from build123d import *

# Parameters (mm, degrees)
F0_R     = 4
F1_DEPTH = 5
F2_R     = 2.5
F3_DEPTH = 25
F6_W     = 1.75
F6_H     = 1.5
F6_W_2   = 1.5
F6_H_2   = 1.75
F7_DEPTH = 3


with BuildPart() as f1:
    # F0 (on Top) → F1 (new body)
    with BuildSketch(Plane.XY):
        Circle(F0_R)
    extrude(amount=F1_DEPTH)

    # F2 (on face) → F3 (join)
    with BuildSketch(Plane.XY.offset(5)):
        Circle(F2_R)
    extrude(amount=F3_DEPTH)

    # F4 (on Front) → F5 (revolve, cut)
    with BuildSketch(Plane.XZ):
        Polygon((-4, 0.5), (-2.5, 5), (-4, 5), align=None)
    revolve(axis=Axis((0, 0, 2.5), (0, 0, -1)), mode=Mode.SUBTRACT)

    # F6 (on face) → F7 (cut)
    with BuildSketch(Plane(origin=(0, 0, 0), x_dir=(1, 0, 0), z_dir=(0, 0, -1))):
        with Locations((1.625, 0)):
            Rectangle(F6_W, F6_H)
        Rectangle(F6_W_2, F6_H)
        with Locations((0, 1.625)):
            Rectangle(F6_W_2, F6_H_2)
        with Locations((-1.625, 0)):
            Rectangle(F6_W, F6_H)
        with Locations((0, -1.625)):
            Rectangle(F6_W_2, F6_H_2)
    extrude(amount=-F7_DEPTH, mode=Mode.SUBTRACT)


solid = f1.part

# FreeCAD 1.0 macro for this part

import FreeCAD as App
import Part
import Sketcher

V = App.Vector
Q = App.Units.Quantity


def add_polygon(sketch, points):
    """Adds a closed chain of lines whose ends are joined by coincident constraints."""
    first, n = sketch.GeometryCount, len(points)
    for a, b in zip(points, points[1:] + points[:1]):
        sketch.addGeometry(Part.LineSegment(App.Vector(*a, 0), App.Vector(*b, 0)), False)
    for i in range(n):
        sketch.addConstraint(Sketcher.Constraint("Coincident", first + i, 2, first + (i + 1) % n, 1))

doc = App.newDocument("Part")
body = doc.addObject("PartDesign::Body", "Body")

sketch1 = body.newObject("Sketcher::SketchObject", "Sketch")
sketch1.AttachmentSupport = (doc.getObject("XY_Plane"), [""])
sketch1.MapMode = "FlatFace"
sketch1.addGeometry(Part.Circle(V(0, 0, 0), V(0, 0, 1), 4), False)
sketch1.addConstraint([
    Sketcher.Constraint("Coincident", 0, 3, -1, 1),
    Sketcher.Constraint("Diameter", 0, Q("8 mm")),
])
pad1 = body.newObject("PartDesign::Pad", "Pad")
pad1.Profile = sketch1
pad1.Length = 5

sketch2 = body.newObject("Sketcher::SketchObject", "Sketch001")
sketch2.AttachmentSupport = (doc.getObject("XY_Plane"), [""])
sketch2.MapMode = "FlatFace"
sketch2.AttachmentOffset = App.Placement(V(0, 0, 5), App.Rotation())
sketch2.addGeometry(Part.Circle(V(0, 0, 0), V(0, 0, 1), 2.5), False)
sketch2.addConstraint([
    Sketcher.Constraint("Coincident", 0, 3, -1, 1),
    Sketcher.Constraint("Diameter", 0, Q("5 mm")),
])
pad2 = body.newObject("PartDesign::Pad", "Pad001")
pad2.Profile = sketch2
pad2.Length = 25

sketch3 = body.newObject("Sketcher::SketchObject", "Sketch002")
sketch3.AttachmentSupport = (doc.getObject("XZ_Plane"), [""])
sketch3.MapMode = "FlatFace"
add_polygon(sketch3, [(-4, 0.5), (-2.5, 5), (-4, 5)])
sketch3.addConstraint([
    Sketcher.Constraint("Horizontal", 1),
    Sketcher.Constraint("Vertical", 2),
    Sketcher.Constraint("DistanceX", 1, 2, 1, 1, Q("1.5 mm")),
    Sketcher.Constraint("DistanceY", 2, 2, 2, 1, Q("4.5 mm")),
    Sketcher.Constraint("DistanceY", -1, 1, 0, 2, Q("5 mm")),
    Sketcher.Constraint("DistanceX", 1, 2, -1, 1, Q("4 mm")),
])
groove = body.newObject("PartDesign::Groove", "Groove")
groove.Profile = sketch3
groove.ReferenceAxis = (sketch3, ["V_Axis"])
groove.Angle = 360

sketch4 = body.newObject("Sketcher::SketchObject", "Sketch003")
sketch4.AttachmentSupport = (doc.getObject("XY_Plane"), [""])
sketch4.MapMode = "FlatFace"
add_polygon(sketch4, [(2.5, 0.75), (2.5, -0.75), (0.75, -0.75), (0.75, -2.5), (-0.75, -2.5), (-0.75, -0.75), (-2.5, -0.75), (-2.5, 0.75), (-0.75, 0.75), (-0.75, 2.5), (0.75, 2.5), (0.75, 0.75)])
sketch4.addConstraint([
    Sketcher.Constraint("Vertical", 0),
    Sketcher.Constraint("Horizontal", 1),
    Sketcher.Constraint("Vertical", 2),
    Sketcher.Constraint("Horizontal", 3),
    Sketcher.Constraint("Vertical", 4),
    Sketcher.Constraint("Horizontal", 5),
    Sketcher.Constraint("Vertical", 6),
    Sketcher.Constraint("Horizontal", 7),
    Sketcher.Constraint("Vertical", 8),
    Sketcher.Constraint("Horizontal", 9),
    Sketcher.Constraint("Vertical", 10),
    Sketcher.Constraint("Horizontal", 11),
    Sketcher.Constraint("Symmetric", 0, 2, 6, 2, -1, 1),
    Sketcher.Constraint("Symmetric", 2, 2, 8, 2, -1, 1),
    Sketcher.Constraint("Symmetric", 4, 2, 10, 2, -1, 1),
    Sketcher.Constraint("Symmetric", 1, 2, 4, 2, -2),
    Sketcher.Constraint("Equal", 9, 0),
    Sketcher.Constraint("Equal", 11, 2),
    Sketcher.Constraint("DistanceX", 3, 2, 3, 1, Q("1.5 mm")),
    Sketcher.Constraint("DistanceX", 5, 2, 0, 2, Q("5 mm")),
])
pocket1 = body.newObject("PartDesign::Pocket", "Pocket")
pocket1.Profile = sketch4
pocket1.Length = 3
pocket1.Reversed = True

doc.recompute()
